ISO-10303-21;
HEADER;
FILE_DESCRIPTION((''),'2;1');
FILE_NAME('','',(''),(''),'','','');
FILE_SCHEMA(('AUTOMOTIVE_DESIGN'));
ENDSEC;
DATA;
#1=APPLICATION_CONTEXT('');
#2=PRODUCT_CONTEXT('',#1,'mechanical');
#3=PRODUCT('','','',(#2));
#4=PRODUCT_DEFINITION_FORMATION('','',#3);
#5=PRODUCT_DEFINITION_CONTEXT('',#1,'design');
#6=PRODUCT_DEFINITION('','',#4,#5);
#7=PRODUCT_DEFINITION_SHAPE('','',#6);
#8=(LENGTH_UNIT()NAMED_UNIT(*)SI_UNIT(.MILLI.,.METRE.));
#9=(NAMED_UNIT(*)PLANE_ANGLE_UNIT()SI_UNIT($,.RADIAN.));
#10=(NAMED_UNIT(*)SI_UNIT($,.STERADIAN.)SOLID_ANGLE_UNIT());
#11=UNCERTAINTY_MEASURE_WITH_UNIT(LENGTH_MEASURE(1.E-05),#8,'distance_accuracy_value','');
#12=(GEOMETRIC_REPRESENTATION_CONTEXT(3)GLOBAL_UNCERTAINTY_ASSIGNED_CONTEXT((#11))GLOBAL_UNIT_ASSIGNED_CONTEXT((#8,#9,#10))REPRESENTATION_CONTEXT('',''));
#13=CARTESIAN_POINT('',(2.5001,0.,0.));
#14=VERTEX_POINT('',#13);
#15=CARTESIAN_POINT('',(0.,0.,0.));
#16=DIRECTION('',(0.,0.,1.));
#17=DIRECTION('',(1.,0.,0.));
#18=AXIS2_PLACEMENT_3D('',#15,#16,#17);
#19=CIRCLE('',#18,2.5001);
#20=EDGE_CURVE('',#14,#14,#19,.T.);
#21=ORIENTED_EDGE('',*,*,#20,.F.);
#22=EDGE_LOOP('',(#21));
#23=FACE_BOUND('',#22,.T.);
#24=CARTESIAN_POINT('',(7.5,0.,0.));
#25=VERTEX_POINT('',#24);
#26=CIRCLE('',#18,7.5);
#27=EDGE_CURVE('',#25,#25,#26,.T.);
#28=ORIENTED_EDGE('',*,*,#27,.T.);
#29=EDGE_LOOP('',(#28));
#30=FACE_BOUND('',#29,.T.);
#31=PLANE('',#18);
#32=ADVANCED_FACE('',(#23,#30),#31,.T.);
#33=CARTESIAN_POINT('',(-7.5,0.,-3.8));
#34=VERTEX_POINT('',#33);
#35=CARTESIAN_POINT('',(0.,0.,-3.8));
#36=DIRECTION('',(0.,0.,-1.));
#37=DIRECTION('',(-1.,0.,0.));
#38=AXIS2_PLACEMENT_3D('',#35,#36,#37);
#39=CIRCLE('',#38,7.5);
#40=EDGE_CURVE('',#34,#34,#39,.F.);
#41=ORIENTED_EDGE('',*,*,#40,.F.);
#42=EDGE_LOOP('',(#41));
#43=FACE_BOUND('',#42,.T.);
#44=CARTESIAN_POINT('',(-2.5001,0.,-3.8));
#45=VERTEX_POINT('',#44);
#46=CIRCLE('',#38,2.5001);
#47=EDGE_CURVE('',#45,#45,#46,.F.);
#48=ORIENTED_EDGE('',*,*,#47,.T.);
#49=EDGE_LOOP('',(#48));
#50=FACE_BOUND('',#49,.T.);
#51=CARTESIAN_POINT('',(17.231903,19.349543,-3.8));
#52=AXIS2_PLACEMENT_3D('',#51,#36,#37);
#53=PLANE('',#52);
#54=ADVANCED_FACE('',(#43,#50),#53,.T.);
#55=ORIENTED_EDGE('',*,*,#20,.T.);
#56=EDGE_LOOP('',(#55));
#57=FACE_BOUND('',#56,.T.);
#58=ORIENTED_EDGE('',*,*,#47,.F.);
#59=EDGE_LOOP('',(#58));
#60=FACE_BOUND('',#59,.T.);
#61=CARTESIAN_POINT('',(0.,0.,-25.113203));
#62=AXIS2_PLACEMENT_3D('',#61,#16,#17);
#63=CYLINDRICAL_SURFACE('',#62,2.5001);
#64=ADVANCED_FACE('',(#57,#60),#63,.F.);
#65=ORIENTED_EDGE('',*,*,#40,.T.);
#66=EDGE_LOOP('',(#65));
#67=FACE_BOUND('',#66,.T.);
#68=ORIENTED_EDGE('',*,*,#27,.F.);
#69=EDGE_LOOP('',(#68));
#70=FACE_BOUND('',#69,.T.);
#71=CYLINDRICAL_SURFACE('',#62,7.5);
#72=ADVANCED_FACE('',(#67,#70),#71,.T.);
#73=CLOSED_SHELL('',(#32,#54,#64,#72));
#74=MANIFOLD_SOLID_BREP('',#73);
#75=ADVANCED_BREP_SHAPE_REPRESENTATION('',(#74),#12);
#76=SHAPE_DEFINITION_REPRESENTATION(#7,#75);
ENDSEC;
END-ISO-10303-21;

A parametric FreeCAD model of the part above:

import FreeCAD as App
import Part
import Sketcher

doc = App.newDocument("Part")
body = doc.addObject("PartDesign::Body", "Body")

sketch1 = doc.addObject("Sketcher::SketchObject", "Sketch")
body.addObject(sketch1)
sketch1.AttachmentSupport = (doc.XY_Plane, [""])
sketch1.MapMode = "FlatFace"
sketch1.addGeometry(Part.Circle(App.Vector(0, 0, 0), App.Vector(0, 0, 1), 7.5), False)
sketch1.addGeometry(Part.Circle(App.Vector(0, 0, 0), App.Vector(0, 0, 1), 2.5), False)
sketch1.addConstraint(Sketcher.Constraint("Coincident", 0, 3, -1, 1))
sketch1.addConstraint(Sketcher.Constraint("Coincident", 1, 3, -1, 1))
sketch1.addConstraint(Sketcher.Constraint("Diameter", 0, 15.0))
sketch1.addConstraint(Sketcher.Constraint("Diameter", 1, 5.0002))
pad1 = doc.addObject("PartDesign::Pad", "Pad")
body.addObject(pad1)
pad1.Profile = sketch1
pad1.Length = 3.8
pad1.Reversed = True

doc.recompute()
